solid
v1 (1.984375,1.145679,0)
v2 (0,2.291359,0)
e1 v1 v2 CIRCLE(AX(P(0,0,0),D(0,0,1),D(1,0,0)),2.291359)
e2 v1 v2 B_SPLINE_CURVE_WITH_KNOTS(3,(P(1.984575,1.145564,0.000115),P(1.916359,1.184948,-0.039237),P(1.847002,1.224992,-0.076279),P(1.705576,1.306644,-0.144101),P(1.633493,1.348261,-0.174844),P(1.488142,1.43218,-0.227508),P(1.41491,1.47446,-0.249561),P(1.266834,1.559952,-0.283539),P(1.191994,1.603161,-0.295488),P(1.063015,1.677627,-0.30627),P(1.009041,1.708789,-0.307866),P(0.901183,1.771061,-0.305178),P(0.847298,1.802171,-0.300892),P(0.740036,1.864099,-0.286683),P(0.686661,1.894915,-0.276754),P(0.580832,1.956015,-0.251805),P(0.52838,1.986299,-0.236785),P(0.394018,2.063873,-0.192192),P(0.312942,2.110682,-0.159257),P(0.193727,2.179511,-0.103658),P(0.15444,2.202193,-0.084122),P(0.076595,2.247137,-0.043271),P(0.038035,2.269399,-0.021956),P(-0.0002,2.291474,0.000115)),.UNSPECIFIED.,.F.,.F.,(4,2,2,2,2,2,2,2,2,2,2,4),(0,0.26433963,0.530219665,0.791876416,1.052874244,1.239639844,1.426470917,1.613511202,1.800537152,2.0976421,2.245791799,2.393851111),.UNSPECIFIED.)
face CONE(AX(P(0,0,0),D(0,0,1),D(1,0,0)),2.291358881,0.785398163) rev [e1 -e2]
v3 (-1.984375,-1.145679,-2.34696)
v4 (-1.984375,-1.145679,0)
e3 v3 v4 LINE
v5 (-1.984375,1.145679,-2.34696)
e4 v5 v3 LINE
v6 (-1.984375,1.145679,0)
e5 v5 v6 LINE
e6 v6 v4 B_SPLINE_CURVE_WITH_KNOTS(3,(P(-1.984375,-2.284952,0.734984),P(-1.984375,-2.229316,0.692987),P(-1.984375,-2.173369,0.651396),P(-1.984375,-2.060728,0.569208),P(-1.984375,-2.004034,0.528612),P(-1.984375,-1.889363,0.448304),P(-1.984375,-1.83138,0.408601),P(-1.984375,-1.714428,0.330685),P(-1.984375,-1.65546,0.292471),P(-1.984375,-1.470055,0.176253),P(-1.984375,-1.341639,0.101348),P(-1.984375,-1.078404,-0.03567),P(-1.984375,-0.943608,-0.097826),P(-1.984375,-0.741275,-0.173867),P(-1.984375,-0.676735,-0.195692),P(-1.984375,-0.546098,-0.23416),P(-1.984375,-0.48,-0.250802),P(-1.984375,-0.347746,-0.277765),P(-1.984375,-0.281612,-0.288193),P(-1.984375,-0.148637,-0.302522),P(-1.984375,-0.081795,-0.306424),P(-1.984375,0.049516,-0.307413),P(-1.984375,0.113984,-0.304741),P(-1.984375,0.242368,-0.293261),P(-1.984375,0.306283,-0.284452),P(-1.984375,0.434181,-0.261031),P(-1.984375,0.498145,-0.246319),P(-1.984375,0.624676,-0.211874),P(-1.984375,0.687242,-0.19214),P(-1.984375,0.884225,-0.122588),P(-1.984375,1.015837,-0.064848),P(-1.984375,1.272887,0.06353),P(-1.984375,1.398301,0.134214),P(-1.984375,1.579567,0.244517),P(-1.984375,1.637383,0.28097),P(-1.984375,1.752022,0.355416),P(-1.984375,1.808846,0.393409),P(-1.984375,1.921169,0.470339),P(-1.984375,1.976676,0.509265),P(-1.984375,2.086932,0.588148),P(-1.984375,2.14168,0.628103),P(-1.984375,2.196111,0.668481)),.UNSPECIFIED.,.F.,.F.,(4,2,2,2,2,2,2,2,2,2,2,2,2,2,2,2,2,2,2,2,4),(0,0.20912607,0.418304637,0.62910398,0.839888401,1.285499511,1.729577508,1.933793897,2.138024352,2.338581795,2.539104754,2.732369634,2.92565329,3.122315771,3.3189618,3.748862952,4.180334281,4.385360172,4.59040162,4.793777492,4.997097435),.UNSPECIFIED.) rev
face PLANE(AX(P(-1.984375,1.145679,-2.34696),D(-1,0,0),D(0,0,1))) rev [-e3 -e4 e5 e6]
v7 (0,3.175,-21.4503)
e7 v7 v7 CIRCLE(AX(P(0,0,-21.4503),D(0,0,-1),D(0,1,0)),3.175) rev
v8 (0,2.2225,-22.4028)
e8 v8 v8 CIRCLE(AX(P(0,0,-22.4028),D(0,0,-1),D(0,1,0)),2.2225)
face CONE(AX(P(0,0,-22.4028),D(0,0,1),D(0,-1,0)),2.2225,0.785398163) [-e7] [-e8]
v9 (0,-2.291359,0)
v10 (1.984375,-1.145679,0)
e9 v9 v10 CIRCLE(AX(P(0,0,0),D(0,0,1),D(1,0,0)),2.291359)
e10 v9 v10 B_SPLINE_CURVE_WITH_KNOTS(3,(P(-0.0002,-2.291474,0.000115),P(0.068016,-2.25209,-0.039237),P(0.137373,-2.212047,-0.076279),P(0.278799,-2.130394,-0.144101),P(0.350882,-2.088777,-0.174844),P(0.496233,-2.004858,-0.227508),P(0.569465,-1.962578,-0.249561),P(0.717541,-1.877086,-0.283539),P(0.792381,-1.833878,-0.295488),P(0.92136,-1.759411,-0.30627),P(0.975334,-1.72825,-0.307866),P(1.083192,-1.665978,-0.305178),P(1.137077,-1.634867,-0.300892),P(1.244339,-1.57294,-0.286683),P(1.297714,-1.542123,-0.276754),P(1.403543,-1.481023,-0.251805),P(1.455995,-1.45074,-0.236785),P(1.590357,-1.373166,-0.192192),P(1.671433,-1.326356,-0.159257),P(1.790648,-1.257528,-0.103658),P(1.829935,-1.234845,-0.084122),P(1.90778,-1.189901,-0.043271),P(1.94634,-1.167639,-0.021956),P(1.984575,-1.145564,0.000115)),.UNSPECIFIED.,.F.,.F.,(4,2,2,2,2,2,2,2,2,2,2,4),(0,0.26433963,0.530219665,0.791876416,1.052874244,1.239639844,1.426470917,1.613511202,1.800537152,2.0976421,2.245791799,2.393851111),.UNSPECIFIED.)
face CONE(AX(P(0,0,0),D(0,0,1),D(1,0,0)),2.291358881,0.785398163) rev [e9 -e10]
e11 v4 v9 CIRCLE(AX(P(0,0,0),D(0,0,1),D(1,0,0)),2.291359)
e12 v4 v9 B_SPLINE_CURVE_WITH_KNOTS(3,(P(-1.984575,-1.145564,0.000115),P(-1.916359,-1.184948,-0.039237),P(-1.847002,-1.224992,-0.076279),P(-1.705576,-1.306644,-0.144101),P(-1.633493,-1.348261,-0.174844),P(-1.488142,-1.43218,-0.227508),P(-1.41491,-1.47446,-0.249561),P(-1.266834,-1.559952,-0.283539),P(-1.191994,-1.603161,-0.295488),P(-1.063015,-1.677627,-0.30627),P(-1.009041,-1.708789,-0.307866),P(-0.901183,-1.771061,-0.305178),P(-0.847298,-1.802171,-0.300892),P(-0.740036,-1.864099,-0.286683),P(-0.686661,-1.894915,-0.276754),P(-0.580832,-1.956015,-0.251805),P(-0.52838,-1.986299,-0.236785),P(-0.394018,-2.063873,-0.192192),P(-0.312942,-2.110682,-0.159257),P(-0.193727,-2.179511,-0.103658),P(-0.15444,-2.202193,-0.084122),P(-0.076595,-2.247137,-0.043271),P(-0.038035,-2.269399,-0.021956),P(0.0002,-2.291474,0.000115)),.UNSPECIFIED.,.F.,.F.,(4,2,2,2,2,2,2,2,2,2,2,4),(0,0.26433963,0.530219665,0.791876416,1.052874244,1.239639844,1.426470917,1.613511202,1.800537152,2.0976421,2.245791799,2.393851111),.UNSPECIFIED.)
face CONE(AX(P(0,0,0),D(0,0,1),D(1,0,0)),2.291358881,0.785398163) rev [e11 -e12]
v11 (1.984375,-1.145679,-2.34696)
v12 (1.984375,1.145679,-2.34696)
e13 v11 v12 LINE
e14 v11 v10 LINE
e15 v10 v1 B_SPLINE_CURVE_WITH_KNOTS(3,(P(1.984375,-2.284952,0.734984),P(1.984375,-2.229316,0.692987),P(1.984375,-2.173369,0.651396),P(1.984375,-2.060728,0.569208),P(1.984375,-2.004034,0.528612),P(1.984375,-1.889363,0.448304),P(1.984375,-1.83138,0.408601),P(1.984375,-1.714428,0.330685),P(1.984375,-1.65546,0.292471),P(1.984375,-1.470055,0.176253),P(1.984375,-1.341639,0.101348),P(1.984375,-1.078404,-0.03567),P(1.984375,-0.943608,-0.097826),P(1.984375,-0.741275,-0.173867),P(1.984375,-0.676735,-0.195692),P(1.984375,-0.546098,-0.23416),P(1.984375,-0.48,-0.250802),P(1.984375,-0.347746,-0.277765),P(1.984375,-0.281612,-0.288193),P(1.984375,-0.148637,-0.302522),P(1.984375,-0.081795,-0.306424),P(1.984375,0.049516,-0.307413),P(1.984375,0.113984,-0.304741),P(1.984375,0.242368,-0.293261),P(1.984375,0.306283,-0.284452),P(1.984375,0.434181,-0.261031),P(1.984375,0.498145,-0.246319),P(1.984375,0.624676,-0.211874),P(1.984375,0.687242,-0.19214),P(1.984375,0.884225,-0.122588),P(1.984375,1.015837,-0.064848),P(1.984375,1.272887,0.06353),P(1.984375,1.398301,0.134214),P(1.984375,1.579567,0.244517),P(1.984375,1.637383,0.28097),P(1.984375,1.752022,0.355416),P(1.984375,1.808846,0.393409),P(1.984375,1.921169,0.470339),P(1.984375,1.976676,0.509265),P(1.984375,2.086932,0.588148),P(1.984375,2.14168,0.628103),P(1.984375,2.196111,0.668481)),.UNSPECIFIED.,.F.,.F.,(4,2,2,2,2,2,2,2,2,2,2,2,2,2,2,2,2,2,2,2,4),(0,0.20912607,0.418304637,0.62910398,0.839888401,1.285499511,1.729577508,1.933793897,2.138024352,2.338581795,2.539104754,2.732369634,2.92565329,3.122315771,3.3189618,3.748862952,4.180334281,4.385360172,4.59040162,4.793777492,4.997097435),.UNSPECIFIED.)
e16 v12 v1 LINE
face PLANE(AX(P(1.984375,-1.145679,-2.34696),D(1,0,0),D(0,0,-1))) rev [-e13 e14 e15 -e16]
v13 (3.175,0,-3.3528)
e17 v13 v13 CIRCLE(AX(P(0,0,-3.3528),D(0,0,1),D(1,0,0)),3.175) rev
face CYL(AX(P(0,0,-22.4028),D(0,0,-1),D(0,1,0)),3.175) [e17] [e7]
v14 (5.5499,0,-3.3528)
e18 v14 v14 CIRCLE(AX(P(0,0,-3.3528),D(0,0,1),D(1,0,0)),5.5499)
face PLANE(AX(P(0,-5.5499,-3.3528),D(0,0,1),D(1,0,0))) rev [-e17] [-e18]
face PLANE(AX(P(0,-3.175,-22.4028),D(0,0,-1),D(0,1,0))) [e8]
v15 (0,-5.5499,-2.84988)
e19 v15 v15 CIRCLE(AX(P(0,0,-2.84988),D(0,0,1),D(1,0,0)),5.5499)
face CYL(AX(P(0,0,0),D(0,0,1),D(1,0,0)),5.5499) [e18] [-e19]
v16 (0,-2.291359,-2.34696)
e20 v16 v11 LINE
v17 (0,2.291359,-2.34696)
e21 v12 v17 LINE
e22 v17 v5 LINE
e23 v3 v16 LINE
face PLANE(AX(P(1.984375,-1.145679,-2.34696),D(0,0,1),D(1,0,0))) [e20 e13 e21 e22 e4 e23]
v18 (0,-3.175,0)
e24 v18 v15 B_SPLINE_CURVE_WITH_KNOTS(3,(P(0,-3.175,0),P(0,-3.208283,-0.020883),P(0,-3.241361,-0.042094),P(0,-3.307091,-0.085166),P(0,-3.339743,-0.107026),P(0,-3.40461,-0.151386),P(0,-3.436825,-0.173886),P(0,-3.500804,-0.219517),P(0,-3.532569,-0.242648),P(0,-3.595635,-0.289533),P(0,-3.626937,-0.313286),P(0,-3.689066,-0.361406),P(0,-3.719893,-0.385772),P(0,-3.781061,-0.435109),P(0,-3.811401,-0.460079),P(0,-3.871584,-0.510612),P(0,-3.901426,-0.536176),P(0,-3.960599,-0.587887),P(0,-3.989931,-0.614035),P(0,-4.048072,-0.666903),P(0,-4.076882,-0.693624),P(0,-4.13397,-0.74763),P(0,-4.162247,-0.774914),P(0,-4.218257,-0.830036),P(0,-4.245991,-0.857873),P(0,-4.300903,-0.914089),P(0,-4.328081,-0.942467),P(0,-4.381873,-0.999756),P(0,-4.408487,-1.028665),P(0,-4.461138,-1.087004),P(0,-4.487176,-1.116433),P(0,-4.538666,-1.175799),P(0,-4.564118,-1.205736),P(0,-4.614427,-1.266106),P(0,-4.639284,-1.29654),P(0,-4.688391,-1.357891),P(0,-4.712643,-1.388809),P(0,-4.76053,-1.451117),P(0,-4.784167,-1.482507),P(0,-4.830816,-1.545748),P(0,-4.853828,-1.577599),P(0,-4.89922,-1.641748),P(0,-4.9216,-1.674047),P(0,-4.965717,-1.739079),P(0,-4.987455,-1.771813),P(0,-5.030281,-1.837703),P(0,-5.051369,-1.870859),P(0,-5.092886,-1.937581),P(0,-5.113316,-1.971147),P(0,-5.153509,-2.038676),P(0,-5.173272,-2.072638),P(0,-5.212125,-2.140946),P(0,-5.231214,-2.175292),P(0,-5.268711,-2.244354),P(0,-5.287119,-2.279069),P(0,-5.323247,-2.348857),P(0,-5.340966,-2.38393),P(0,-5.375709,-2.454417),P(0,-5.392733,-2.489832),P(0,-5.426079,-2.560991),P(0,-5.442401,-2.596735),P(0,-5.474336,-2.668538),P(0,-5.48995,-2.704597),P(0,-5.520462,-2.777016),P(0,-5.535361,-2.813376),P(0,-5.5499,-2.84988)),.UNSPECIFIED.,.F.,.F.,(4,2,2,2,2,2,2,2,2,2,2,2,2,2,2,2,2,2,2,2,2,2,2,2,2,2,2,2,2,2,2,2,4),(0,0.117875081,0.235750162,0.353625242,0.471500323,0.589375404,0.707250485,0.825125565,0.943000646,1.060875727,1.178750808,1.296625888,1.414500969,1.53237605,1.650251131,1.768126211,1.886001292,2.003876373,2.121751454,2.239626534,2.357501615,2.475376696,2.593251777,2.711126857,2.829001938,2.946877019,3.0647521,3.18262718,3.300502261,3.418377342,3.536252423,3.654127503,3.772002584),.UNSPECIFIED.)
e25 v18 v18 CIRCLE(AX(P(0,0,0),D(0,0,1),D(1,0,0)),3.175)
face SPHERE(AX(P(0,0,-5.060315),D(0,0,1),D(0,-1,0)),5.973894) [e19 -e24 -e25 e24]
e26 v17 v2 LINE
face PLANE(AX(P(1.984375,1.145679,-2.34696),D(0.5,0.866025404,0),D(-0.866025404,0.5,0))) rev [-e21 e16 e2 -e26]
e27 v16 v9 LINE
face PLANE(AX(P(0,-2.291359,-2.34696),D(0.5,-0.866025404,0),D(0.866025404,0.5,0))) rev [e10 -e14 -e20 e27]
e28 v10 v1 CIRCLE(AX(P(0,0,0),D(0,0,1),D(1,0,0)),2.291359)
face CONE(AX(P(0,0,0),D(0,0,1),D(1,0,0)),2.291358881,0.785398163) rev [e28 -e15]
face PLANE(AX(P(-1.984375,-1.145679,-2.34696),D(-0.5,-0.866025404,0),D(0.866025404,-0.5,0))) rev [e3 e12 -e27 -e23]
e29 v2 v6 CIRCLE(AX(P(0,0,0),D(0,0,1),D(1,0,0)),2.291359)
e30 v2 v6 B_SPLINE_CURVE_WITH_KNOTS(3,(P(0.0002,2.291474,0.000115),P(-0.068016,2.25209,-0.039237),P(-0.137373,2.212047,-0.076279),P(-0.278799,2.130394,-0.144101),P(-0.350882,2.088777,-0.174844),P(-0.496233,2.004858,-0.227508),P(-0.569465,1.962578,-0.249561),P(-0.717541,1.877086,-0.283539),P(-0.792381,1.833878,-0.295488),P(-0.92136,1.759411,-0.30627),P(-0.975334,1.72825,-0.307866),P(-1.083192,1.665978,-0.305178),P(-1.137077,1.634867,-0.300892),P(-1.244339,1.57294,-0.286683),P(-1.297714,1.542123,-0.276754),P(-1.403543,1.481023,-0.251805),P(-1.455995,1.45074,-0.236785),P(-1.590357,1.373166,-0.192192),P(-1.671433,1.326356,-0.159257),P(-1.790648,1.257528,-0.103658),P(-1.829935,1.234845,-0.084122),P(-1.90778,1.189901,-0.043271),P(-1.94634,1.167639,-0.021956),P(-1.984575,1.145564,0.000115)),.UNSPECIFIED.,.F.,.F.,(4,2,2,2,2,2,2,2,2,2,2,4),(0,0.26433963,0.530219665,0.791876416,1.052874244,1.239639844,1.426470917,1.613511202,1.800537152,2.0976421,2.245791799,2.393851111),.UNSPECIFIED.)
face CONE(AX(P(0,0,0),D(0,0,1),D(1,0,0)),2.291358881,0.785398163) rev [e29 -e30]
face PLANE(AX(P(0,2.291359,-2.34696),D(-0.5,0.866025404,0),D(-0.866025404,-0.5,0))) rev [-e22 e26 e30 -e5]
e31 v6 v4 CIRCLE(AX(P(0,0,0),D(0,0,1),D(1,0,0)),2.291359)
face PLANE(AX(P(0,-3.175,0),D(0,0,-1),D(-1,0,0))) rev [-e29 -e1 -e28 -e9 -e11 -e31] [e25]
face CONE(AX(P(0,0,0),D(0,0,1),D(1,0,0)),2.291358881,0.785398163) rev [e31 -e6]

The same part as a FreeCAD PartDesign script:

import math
import FreeCAD as App
import Part
import Sketcher
Q = App.Units.Quantity


def edges_at(feature, points):
    """Names of the edges that pass closest to the given points."""
    edges = feature.Shape.Edges
    near = lambda p: min(range(len(edges)), key=lambda i: edges[i].distToShape(Part.Vertex(*p))[0])
    return sorted({f"Edge{near(p) + 1}" for p in points})


def add_polygon(sketch, points):
    """Adds a closed chain of lines whose ends are joined by coincident constraints."""
    first, n = sketch.GeometryCount, len(points)
    for a, b in zip(points, points[1:] + points[:1]):
        sketch.addGeometry(Part.LineSegment(App.Vector(*a, 0), App.Vector(*b, 0)), False)
    for i in range(n):
        sketch.addConstraint(Sketcher.Constraint("Coincident", first + i, 2, first + (i + 1) % n, 1))

doc = App.newDocument("Part")
params = doc.addObject("Spreadsheet::Sheet", "Params")
for row, (alias, value) in enumerate([
    ("sketch1_height", "0.75 in"),
    ("sketch1_width", "0.125 in"),
    ("revolution_angle", "360 deg"),
    ("chamfer_size", "0.0375 in"),
    ("sketch2_width", "0.125 in"),
    ("sketch2_height", "0.132 in"),
    ("revolution2_angle", "360 deg"),
    ("pocket1_length", "0.0924 in"),
    ("groove_angle", "360 deg"),
], start=1):
    params.set(f"A{row}", alias)
    params.set(f"B{row}", "=" + value)
    params.setAlias(f"B{row}", alias)

body = doc.addObject("PartDesign::Body", "Body")

# Sketch on YZ plane
sketch1 = doc.addObject("Sketcher::SketchObject", "Sketch")
body.addObject(sketch1)
sketch1.AttachmentSupport = (doc.YZ_Plane, [""])
sketch1.MapMode = "FlatFace"
add_polygon(sketch1, [(3.175, -3.3528), (0, -3.3528), (0, -22.4028), (3.175, -22.4028)])  # lines 0-3
sketch1.addConstraint([
    Sketcher.Constraint("Horizontal", 0),
    Sketcher.Constraint("Vertical", 1),
    Sketcher.Constraint("Horizontal", 2),
    Sketcher.Constraint("Vertical", 3),
    Sketcher.Constraint("PointOnObject", 0, 2, -2),
    Sketcher.Constraint("DistanceY", 1, 2, 1, 1, Q("0.75 in")),
    Sketcher.Constraint("DistanceX", 0, 2, 0, 1, Q("0.125 in")),
    Sketcher.Constraint("DistanceY", 0, 2, -1, 1, Q("0.132 in")),
])
sketch1.setExpression("Constraints[9]", "Params.sketch1_height")
sketch1.setExpression("Constraints[10]", "Params.sketch1_width")
revolution = doc.addObject("PartDesign::Revolution", "Revolution")
body.addObject(revolution)
revolution.Profile = sketch1
revolution.ReferenceAxis = (sketch1, ["V_Axis"])
revolution.setExpression("Angle", "Params.revolution_angle")
doc.recompute()

chamfer = doc.addObject("PartDesign::Chamfer", "Chamfer")
body.addObject(chamfer)
chamfer.Base = (revolution, edges_at(revolution, [(0, -3.175, -22.403)]))
chamfer.setExpression("Size", "Params.chamfer_size")

# Sketch on YZ plane
sketch2 = doc.addObject("Sketcher::SketchObject", "Sketch001")
body.addObject(sketch2)
sketch2.AttachmentSupport = (doc.YZ_Plane, [""])
sketch2.MapMode = "FlatFace"
sketch2.addGeometry([
    Part.LineSegment(App.Vector(5.5499, -3.3528, 0), App.Vector(5.5499, -2.84988, 0)),  # 0
    Part.ArcOfCircle(Part.Circle(App.Vector(0, -5.060315, 0), App.Vector(0, 0, 1), 5.973894), math.radians(21.716589), math.radians(57.894553)),  # 1
    Part.LineSegment(App.Vector(3.175, 0, 0), App.Vector(0, 0, 0)),  # 2
    Part.LineSegment(App.Vector(0, 0, 0), App.Vector(0, -3.3528, 0)),  # 3
    Part.LineSegment(App.Vector(0, -3.3528, 0), App.Vector(5.5499, -3.3528, 0)),  # 4
], False)
sketch2.addConstraint([
    Sketcher.Constraint("Coincident", 0, 2, 1, 1),
    Sketcher.Constraint("Coincident", 1, 2, 2, 1),
    Sketcher.Constraint("Coincident", 2, 2, 3, 1),
    Sketcher.Constraint("Coincident", 3, 2, 4, 1),
    Sketcher.Constraint("Coincident", 4, 2, 0, 1),
    Sketcher.Constraint("Vertical", 0),
    Sketcher.Constraint("Horizontal", 2),
    Sketcher.Constraint("Vertical", 3),
    Sketcher.Constraint("Horizontal", 4),
    Sketcher.Constraint("Coincident", 2, 2, -1, 1),
    Sketcher.Constraint("PointOnObject", 1, 3, -2),
    Sketcher.Constraint("DistanceX", 2, 2, 2, 1, Q("0.125 in")),
    Sketcher.Constraint("DistanceY", 3, 2, 3, 1, Q("0.132 in")),
    Sketcher.Constraint("DistanceX", 4, 1, 4, 2, Q("0.2185 in")),
    Sketcher.Constraint("DistanceY", 0, 1, 0, 2, Q("0.0198 in")),
])
sketch2.setExpression("Constraints[11]", "Params.sketch2_width")
sketch2.setExpression("Constraints[12]", "Params.sketch2_height")
revolution2 = doc.addObject("PartDesign::Revolution", "Revolution001")
body.addObject(revolution2)
revolution2.Profile = sketch2
revolution2.ReferenceAxis = (sketch2, ["V_Axis"])
revolution2.setExpression("Angle", "Params.revolution2_angle")

# Sketch on XY plane
sketch3 = doc.addObject("Sketcher::SketchObject", "Sketch002")
body.addObject(sketch3)
sketch3.AttachmentSupport = (doc.XY_Plane, [""])
sketch3.MapMode = "FlatFace"
add_polygon(sketch3, [(1.984375, -1.145679), (1.984375, 1.145679), (0, 2.291359), (-1.984375, 1.145679), (-1.984375, -1.145679), (0, -2.291359)])  # lines 0-5
sketch3.addConstraint([
    Sketcher.Constraint("Vertical", 0),
    Sketcher.Constraint("Vertical", 3),
    Sketcher.Constraint("Symmetric", 0, 2, 3, 2, -1, 1),
    Sketcher.Constraint("Symmetric", 1, 2, 4, 2, -1, 1),
    Sketcher.Constraint("PointOnObject", 1, 2, -2),
    Sketcher.Constraint("Parallel", 2, 5),
    Sketcher.Constraint("Horizontal", 0, 2, 2, 2),
    Sketcher.Constraint("Angle", 1, Q("150 deg")),
    Sketcher.Constraint("DistanceX", -1, 1, 0, 2, Q("0.078125 in")),
    Sketcher.Constraint("DistanceY", 0, 1, 0, 2, Q("2.291359 mm")),
])
pocket1 = doc.addObject("PartDesign::Pocket", "Pocket")
body.addObject(pocket1)
pocket1.Profile = sketch3
pocket1.setExpression("Length", "Params.pocket1_length")

# Sketch on YZ plane
sketch4 = doc.addObject("Sketcher::SketchObject", "Sketch003")
body.addObject(sketch4)
sketch4.AttachmentSupport = (doc.YZ_Plane, [""])
sketch4.MapMode = "FlatFace"
add_polygon(sketch4, [(0, 0), (-2.291359, 0), (0, -2.291359)])  # lines 0-2
sketch4.addConstraint([
    Sketcher.Constraint("Horizontal", 0),
    Sketcher.Constraint("Vertical", 2),
    Sketcher.Constraint("Coincident", 2, 2, -1, 1),
    Sketcher.Constraint("Equal", 0, 2),
    Sketcher.Constraint("DistanceX", 0, 2, 0, 1, Q("2.291359 mm")),
])
groove = doc.addObject("PartDesign::Groove", "Groove")
body.addObject(groove)
groove.Profile = sketch4
groove.ReferenceAxis = (sketch4, ["V_Axis"])
groove.setExpression("Angle", "Params.groove_angle")

doc.recompute()
